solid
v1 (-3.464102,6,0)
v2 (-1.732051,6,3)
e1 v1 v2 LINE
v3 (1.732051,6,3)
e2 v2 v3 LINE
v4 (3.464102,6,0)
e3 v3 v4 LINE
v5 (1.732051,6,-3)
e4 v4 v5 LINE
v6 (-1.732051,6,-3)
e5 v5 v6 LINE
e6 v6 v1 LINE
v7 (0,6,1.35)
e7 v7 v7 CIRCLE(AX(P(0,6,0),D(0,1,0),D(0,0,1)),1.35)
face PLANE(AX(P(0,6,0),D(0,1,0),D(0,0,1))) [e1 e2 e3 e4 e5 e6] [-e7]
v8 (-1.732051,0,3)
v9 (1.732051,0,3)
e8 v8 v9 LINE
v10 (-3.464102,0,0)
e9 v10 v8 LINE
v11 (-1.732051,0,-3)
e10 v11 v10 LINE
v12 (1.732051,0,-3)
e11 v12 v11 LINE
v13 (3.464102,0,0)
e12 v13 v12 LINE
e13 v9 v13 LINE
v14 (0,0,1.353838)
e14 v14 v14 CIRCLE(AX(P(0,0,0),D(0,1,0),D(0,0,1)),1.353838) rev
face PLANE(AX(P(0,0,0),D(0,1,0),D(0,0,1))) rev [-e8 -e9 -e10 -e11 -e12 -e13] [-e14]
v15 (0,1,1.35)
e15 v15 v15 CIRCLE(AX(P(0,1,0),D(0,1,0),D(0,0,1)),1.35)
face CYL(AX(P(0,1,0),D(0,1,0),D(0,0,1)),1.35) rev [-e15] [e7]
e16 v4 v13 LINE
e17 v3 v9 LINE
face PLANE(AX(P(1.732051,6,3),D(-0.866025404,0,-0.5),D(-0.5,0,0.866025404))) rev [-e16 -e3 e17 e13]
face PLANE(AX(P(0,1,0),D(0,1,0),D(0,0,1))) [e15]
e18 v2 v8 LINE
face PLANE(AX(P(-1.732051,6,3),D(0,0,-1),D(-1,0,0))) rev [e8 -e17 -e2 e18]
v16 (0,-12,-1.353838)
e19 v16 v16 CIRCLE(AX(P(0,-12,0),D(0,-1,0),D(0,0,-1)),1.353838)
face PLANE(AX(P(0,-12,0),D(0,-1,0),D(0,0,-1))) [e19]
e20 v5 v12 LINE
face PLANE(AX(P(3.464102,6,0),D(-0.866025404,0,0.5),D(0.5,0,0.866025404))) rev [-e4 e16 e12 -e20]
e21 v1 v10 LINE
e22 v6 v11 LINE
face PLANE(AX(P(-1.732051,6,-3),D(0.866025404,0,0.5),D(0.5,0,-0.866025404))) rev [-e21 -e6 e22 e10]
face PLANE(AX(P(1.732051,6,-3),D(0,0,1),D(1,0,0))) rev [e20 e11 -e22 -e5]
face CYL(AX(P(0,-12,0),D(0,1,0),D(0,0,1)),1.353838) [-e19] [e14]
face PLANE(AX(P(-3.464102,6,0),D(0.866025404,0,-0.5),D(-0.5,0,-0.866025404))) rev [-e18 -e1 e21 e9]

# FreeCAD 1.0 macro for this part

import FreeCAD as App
import Part
import Sketcher
Q = App.Units.Quantity


def add_polygon(sketch, points):
    """Adds a closed chain of lines whose ends are joined by coincident constraints."""
    first, n = sketch.GeometryCount, len(points)
    for a, b in zip(points, points[1:] + points[:1]):
        sketch.addGeometry(Part.LineSegment(App.Vector(*a, 0), App.Vector(*b, 0)), False)
    for i in range(n):
        sketch.addConstraint(Sketcher.Constraint("Coincident", first + i, 2, first + (i + 1) % n, 1))

doc = App.newDocument("Part")
body = doc.addObject("PartDesign::Body", "Body")

sketch1 = body.newObject("Sketcher::SketchObject", "Sketch")
sketch1.AttachmentSupport = (doc.getObject("XZ_Plane"), [""])
sketch1.MapMode = "FlatFace"
add_polygon(sketch1, [(3.5, 0), (1.7, -3), (-1.7, -3), (-3.5, 0), (-1.7, 3), (1.7, 3)])
sketch1.addConstraint(Sketcher.Constraint("Horizontal", 1))
sketch1.addConstraint(Sketcher.Constraint("Horizontal", 4))
sketch1.addConstraint(Sketcher.Constraint("Symmetric", 0, 2, 3, 2, -1, 1))
sketch1.addConstraint(Sketcher.Constraint("Symmetric", 2, 2, 5, 2, -1, 1))
sketch1.addConstraint(Sketcher.Constraint("PointOnObject", 2, 2, -1))
sketch1.addConstraint(Sketcher.Constraint("Parallel", 2, 5))
sketch1.addConstraint(Sketcher.Constraint("Vertical", 1, 2, 3, 2))
sketch1.addConstraint(Sketcher.Constraint("Angle", 0, Q("-120 deg")))
sketch1.addConstraint(Sketcher.Constraint("DistanceY", 0, 2, -1, 1, Q("3 mm")))
sketch1.addConstraint(Sketcher.Constraint("DistanceX", 1, 2, 1, 1, Q("3.464102 mm")))
pad1 = body.newObject("PartDesign::Pad", "Pad")
pad1.Profile = sketch1
pad1.Length = 6
pad1.Reversed = True

sketch2 = body.newObject("Sketcher::SketchObject", "Sketch001")
sketch2.AttachmentSupport = (doc.getObject("XZ_Plane"), [""])
sketch2.MapMode = "FlatFace"
sketch2.addGeometry(Part.Circle(App.Vector(0, 0, 0), App.Vector(0, 0, 1), 1.4), False)
sketch2.addConstraint(Sketcher.Constraint("Coincident", 0, 3, -1, 1))
sketch2.addConstraint(Sketcher.Constraint("Diameter", 0, Q("2.707676 mm")))
pad2 = body.newObject("PartDesign::Pad", "Pad001")
pad2.Profile = sketch2
pad2.Length = 12

sketch3 = body.newObject("Sketcher::SketchObject", "Sketch002")
sketch3.AttachmentSupport = (doc.getObject("XZ_Plane"), [""])
sketch3.MapMode = "FlatFace"
sketch3.AttachmentOffset = App.Placement(App.Vector(0, 0, -6), App.Rotation())
sketch3.addGeometry(Part.Circle(App.Vector(0, 0, 0), App.Vector(0, 0, 1), 1.4), False)
sketch3.addConstraint(Sketcher.Constraint("Coincident", 0, 3, -1, 1))
sketch3.addConstraint(Sketcher.Constraint("Diameter", 0, Q("2.7 mm")))
pocket1 = body.newObject("PartDesign::Pocket", "Pocket")
pocket1.Profile = sketch3
pocket1.Length = 5
pocket1.Reversed = True

doc.recompute()
